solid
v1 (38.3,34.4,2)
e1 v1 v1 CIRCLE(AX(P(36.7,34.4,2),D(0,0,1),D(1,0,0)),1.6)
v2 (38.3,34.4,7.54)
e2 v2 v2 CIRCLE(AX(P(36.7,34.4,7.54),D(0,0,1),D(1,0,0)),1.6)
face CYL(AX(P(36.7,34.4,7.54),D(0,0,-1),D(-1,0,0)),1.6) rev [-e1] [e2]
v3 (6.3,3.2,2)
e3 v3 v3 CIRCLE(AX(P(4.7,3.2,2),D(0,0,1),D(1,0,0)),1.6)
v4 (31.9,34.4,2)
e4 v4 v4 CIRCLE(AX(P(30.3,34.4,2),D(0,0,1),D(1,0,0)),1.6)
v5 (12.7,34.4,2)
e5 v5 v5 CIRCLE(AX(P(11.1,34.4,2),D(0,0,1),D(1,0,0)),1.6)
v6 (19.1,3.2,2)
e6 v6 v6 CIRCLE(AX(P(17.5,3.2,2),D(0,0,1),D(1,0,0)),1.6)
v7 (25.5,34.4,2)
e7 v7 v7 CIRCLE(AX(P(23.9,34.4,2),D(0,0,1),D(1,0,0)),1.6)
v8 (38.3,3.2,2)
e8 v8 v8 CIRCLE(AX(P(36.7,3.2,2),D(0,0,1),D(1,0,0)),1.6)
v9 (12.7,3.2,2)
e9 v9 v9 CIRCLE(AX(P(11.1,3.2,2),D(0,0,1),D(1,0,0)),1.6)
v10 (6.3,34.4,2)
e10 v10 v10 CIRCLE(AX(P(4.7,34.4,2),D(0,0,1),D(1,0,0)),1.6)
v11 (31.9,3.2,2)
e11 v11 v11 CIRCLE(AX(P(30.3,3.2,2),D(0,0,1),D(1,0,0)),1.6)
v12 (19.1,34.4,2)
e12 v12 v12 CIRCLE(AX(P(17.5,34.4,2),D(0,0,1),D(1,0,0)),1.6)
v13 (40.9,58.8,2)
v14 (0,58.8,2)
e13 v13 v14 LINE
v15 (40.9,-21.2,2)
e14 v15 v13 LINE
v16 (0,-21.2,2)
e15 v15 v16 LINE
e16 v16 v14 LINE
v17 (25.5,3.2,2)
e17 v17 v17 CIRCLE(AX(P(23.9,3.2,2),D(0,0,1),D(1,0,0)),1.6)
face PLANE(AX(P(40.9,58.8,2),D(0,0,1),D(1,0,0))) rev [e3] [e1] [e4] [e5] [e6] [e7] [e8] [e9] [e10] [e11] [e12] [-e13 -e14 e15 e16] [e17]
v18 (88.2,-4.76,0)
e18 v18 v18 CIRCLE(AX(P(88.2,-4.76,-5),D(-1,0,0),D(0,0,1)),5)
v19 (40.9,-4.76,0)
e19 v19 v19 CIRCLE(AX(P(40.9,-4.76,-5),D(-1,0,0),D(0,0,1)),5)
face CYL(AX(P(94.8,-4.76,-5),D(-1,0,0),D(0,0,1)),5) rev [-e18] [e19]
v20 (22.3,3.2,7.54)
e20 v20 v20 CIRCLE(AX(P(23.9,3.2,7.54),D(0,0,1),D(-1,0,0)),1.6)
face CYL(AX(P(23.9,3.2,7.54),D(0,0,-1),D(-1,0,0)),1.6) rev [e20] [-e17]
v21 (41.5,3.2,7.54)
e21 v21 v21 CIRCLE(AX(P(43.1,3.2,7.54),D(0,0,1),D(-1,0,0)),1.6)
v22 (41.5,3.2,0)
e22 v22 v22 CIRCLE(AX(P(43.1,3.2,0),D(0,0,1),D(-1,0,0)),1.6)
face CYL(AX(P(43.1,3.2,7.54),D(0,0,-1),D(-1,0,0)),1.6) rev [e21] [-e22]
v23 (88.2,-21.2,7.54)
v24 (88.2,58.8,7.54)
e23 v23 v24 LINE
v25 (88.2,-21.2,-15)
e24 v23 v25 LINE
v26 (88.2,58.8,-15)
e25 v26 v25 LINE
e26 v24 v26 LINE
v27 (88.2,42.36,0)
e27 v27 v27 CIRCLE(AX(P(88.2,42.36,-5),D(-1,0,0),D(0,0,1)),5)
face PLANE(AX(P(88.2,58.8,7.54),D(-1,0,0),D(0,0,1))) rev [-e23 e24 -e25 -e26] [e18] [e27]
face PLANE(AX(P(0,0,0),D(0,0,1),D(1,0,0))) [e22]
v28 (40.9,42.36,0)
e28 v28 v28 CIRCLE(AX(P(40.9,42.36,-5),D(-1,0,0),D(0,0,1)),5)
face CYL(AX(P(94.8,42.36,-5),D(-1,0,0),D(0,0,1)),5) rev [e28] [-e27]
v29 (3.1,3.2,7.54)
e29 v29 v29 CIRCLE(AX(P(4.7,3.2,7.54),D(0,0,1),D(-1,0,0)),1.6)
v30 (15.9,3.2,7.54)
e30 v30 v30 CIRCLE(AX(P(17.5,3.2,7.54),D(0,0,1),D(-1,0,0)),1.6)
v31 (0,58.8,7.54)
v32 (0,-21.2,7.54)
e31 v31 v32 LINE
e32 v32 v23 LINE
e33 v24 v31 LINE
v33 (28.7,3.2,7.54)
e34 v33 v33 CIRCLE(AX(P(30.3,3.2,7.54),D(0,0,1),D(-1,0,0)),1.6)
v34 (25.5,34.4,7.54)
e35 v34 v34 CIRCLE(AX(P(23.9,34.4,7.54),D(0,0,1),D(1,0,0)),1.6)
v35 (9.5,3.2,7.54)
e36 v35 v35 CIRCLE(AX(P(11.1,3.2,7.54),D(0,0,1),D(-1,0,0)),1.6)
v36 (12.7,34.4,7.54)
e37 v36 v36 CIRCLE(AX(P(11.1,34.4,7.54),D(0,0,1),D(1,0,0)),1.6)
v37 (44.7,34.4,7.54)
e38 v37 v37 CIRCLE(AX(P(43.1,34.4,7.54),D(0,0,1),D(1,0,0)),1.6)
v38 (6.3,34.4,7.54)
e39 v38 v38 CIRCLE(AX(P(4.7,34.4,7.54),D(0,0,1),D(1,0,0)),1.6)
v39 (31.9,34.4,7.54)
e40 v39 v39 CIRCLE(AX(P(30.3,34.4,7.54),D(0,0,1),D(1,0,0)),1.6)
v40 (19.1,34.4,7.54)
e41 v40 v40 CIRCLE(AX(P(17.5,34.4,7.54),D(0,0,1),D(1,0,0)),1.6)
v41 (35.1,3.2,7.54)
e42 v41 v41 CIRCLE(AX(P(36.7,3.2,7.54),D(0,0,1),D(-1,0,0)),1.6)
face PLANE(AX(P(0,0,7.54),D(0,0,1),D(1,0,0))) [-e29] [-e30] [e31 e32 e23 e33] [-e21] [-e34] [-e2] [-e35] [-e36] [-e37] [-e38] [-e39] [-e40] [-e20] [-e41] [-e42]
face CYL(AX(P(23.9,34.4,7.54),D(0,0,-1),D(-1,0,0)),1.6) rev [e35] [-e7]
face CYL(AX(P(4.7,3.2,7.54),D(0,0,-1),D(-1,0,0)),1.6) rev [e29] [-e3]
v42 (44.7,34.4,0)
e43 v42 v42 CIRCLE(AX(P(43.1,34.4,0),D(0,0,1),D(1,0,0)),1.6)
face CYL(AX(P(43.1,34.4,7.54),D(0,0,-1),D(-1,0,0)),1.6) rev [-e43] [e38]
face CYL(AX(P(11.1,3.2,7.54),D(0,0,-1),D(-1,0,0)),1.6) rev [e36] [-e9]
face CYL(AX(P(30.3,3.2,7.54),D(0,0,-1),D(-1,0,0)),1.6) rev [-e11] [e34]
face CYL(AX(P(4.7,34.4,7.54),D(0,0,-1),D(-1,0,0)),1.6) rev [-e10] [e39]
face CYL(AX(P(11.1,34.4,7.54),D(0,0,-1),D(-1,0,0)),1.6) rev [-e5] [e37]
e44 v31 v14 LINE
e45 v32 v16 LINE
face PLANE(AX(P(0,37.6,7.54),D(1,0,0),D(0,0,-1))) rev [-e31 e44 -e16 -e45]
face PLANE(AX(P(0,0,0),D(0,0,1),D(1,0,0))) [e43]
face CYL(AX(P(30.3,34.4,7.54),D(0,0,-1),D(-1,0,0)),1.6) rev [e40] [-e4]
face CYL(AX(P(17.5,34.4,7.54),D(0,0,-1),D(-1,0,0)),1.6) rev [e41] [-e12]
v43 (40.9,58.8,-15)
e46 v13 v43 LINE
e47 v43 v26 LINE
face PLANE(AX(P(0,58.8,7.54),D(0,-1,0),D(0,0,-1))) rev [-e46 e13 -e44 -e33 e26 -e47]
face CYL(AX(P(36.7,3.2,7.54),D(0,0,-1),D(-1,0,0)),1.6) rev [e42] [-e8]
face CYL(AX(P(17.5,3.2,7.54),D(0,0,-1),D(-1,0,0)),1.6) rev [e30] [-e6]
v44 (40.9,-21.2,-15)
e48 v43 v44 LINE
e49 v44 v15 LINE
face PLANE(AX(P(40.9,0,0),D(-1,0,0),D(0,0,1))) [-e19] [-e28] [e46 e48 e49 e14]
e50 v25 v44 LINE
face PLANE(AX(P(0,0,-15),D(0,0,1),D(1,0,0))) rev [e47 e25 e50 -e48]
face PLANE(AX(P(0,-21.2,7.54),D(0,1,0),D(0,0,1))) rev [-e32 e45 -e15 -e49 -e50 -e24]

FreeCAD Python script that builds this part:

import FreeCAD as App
import Part
import Sketcher

V = App.Vector
Q = App.Units.Quantity


def add_polygon(sketch, points):
    """Adds a closed chain of lines whose ends are joined by coincident constraints."""
    first, n = sketch.GeometryCount, len(points)
    for a, b in zip(points, points[1:] + points[:1]):
        sketch.addGeometry(Part.LineSegment(App.Vector(*a, 0), App.Vector(*b, 0)), False)
    for i in range(n):
        sketch.addConstraint(Sketcher.Constraint("Coincident", first + i, 2, first + (i + 1) % n, 1))

doc = App.newDocument("Part")
body = doc.addObject("PartDesign::Body", "Body")

# Sketch on XY plane
sketch1 = doc.addObject("Sketcher::SketchObject", "Sketch")
body.addObject(sketch1)
sketch1.AttachmentSupport = (doc.XY_Plane, [""])
sketch1.MapMode = "FlatFace"
add_polygon(sketch1, [(88.2, 58.8), (0, 58.8), (0, -21.2), (88.2, -21.2)])  # lines 0-3
sketch1.addGeometry(Part.Circle(V(4.7, 3.2, 0), V(0, 0, 1), 1.6), False)  # 4
sketch1.addGeometry(Part.Circle(V(11.1, 3.2, 0), V(0, 0, 1), 1.6), False)  # 5
sketch1.addGeometry(Part.Circle(V(17.5, 3.2, 0), V(0, 0, 1), 1.6), False)  # 6
sketch1.addGeometry(Part.Circle(V(23.9, 3.2, 0), V(0, 0, 1), 1.6), False)  # 7
sketch1.addGeometry(Part.Circle(V(30.3, 3.2, 0), V(0, 0, 1), 1.6), False)  # 8
sketch1.addGeometry(Part.Circle(V(36.7, 3.2, 0), V(0, 0, 1), 1.6), False)  # 9
sketch1.addGeometry(Part.Circle(V(43.1, 3.2, 0), V(0, 0, 1), 1.6), False)  # 10
sketch1.addGeometry(Part.Circle(V(4.7, 34.4, 0), V(0, 0, 1), 1.6), False)  # 11
sketch1.addGeometry(Part.Circle(V(11.1, 34.4, 0), V(0, 0, 1), 1.6), False)  # 12
sketch1.addGeometry(Part.Circle(V(17.5, 34.4, 0), V(0, 0, 1), 1.6), False)  # 13
sketch1.addGeometry(Part.Circle(V(23.9, 34.4, 0), V(0, 0, 1), 1.6), False)  # 14
sketch1.addGeometry(Part.Circle(V(30.3, 34.4, 0), V(0, 0, 1), 1.6), False)  # 15
sketch1.addGeometry(Part.Circle(V(36.7, 34.4, 0), V(0, 0, 1), 1.6), False)  # 16
sketch1.addGeometry(Part.Circle(V(43.1, 34.4, 0), V(0, 0, 1), 1.6), False)  # 17
sketch1.addConstraint([
    Sketcher.Constraint("Horizontal", 0),
    Sketcher.Constraint("Vertical", 1),
    Sketcher.Constraint("Horizontal", 2),
    Sketcher.Constraint("Vertical", 3),
    Sketcher.Constraint("Equal", 4, 5),
    Sketcher.Constraint("Equal", 5, 6),
    Sketcher.Constraint("Equal", 6, 7),
    Sketcher.Constraint("Equal", 7, 8),
    Sketcher.Constraint("Equal", 8, 9),
    Sketcher.Constraint("Equal", 9, 10),
    Sketcher.Constraint("Equal", 10, 11),
    Sketcher.Constraint("Equal", 11, 12),
    Sketcher.Constraint("Equal", 12, 13),
    Sketcher.Constraint("Equal", 13, 14),
    Sketcher.Constraint("Equal", 14, 15),
    Sketcher.Constraint("Equal", 15, 16),
    Sketcher.Constraint("Equal", 16, 17),
    Sketcher.Constraint("PointOnObject", 0, 2, -2),
    Sketcher.Constraint("Horizontal", 4, 3, 5, 3),
    Sketcher.Constraint("Horizontal", 5, 3, 6, 3),
    Sketcher.Constraint("Horizontal", 6, 3, 7, 3),
    Sketcher.Constraint("Horizontal", 7, 3, 8, 3),
    Sketcher.Constraint("Horizontal", 8, 3, 9, 3),
    Sketcher.Constraint("Horizontal", 9, 3, 10, 3),
    Sketcher.Constraint("Horizontal", 11, 3, 12, 3),
    Sketcher.Constraint("Horizontal", 12, 3, 13, 3),
    Sketcher.Constraint("Horizontal", 13, 3, 14, 3),
    Sketcher.Constraint("Horizontal", 14, 3, 15, 3),
    Sketcher.Constraint("Horizontal", 15, 3, 16, 3),
    Sketcher.Constraint("Horizontal", 16, 3, 17, 3),
    Sketcher.Constraint("Vertical", 4, 3, 11, 3),
    Sketcher.Constraint("Vertical", 5, 3, 12, 3),
    Sketcher.Constraint("Vertical", 6, 3, 13, 3),
    Sketcher.Constraint("Vertical", 7, 3, 14, 3),
    Sketcher.Constraint("Vertical", 8, 3, 15, 3),
    Sketcher.Constraint("Vertical", 9, 3, 16, 3),
    Sketcher.Constraint("Vertical", 10, 3, 17, 3),
    Sketcher.Constraint("Diameter", 4, Q("3.2 mm")),
    Sketcher.Constraint("DistanceY", 1, 2, 1, 1, Q("80 mm")),
    Sketcher.Constraint("DistanceX", 0, 2, 0, 1, Q("88.2 mm")),
    Sketcher.Constraint("DistanceX", 4, 3, 9, 3, Q("32 mm")),
    Sketcher.Constraint("DistanceX", 5, 3, 10, 3, Q("32 mm")),
    Sketcher.Constraint("DistanceX", -1, 1, 4, 3, Q("4.7 mm")),
    Sketcher.Constraint("DistanceY", -1, 1, 4, 3, Q("3.2 mm")),
    Sketcher.Constraint("DistanceX", -1, 1, 5, 3, Q("11.1 mm")),
    Sketcher.Constraint("DistanceX", -1, 1, 6, 3, Q("17.5 mm")),
    Sketcher.Constraint("DistanceX", -1, 1, 7, 3, Q("23.9 mm")),
    Sketcher.Constraint("DistanceX", -1, 1, 8, 3, Q("30.3 mm")),
    Sketcher.Constraint("DistanceY", -1, 1, 11, 3, Q("34.4 mm")),
    Sketcher.Constraint("DistanceY", -1, 1, 0, 2, Q("58.8 mm")),
])
pad1 = doc.addObject("PartDesign::Pad", "Pad")
body.addObject(pad1)
pad1.Profile = sketch1
pad1.Length = 7.54

# Sketch on XY plane
sketch2 = doc.addObject("Sketcher::SketchObject", "Sketch001")
body.addObject(sketch2)
sketch2.AttachmentSupport = (doc.XY_Plane, [""])
sketch2.MapMode = "FlatFace"
add_polygon(sketch2, [(88.2, 58.8), (88.2, -21.2), (39.9, -21.2), (39.9, 58.8)])  # lines 0-3
sketch2.addConstraint([
    Sketcher.Constraint("Vertical", 0),
    Sketcher.Constraint("Horizontal", 1),
    Sketcher.Constraint("Vertical", 2),
    Sketcher.Constraint("Horizontal", 3),
    Sketcher.Constraint("DistanceY", 0, 2, 0, 1, Q("80 mm")),
    Sketcher.Constraint("DistanceX", 1, 2, 1, 1, Q("48.3 mm")),
    Sketcher.Constraint("DistanceX", -1, 1, 0, 2, Q("88.2 mm")),
    Sketcher.Constraint("DistanceY", 0, 2, -1, 1, Q("21.2 mm")),
])
pad2 = doc.addObject("PartDesign::Pad", "Pad001")
body.addObject(pad2)
pad2.Profile = sketch2
pad2.Length = 15
pad2.Reversed = True

# Sketch on YZ plane
sketch3 = doc.addObject("Sketcher::SketchObject", "Sketch002")
body.addObject(sketch3)
sketch3.AttachmentSupport = (doc.YZ_Plane, [""])
sketch3.MapMode = "FlatFace"
add_polygon(sketch3, [(58.8, 2), (58.8, -15), (-21.2, -15), (-21.2, 2)])  # lines 0-3
sketch3.addConstraint([
    Sketcher.Constraint("Vertical", 0),
    Sketcher.Constraint("Horizontal", 1),
    Sketcher.Constraint("Vertical", 2),
    Sketcher.Constraint("Horizontal", 3),
    Sketcher.Constraint("DistanceX", 1, 2, 1, 1, Q("80 mm")),
    Sketcher.Constraint("DistanceY", 0, 2, 0, 1, Q("17 mm")),
    Sketcher.Constraint("DistanceY", 0, 2, -1, 1, Q("15 mm")),
    Sketcher.Constraint("DistanceX", -1, 1, 0, 2, Q("58.8 mm")),
])
pocket1 = doc.addObject("PartDesign::Pocket", "Pocket")
body.addObject(pocket1)
pocket1.Profile = sketch3
pocket1.Length = 40.9
pocket1.Reversed = True

# Sketch on YZ plane
sketch4 = doc.addObject("Sketcher::SketchObject", "Sketch003")
body.addObject(sketch4)
sketch4.AttachmentSupport = (doc.YZ_Plane, [""])
sketch4.MapMode = "FlatFace"
sketch4.AttachmentOffset = App.Placement(V(0, 0, 39.9), App.Rotation())
sketch4.addGeometry([
    Part.Circle(V(42.36, -5, 0), V(0, 0, 1), 5),
    Part.Circle(V(-4.76, -5, 0), V(0, 0, 1), 5),
], False)
sketch4.addConstraint([
    Sketcher.Constraint("Equal", 0, 1),
    Sketcher.Constraint("Horizontal", 0, 3, 1, 3),
    Sketcher.Constraint("Diameter", 0, Q("10 mm")),
    Sketcher.Constraint("DistanceY", 0, 3, -1, 1, Q("5 mm")),
    Sketcher.Constraint("DistanceX", -1, 1, 0, 3, Q("42.36 mm")),
    Sketcher.Constraint("DistanceX", 1, 3, -1, 1, Q("4.76 mm")),
])
pocket2 = doc.addObject("PartDesign::Pocket", "Pocket001")
body.addObject(pocket2)
pocket2.Profile = sketch4
pocket2.Length = 54.9
pocket2.Reversed = True

doc.recompute()
